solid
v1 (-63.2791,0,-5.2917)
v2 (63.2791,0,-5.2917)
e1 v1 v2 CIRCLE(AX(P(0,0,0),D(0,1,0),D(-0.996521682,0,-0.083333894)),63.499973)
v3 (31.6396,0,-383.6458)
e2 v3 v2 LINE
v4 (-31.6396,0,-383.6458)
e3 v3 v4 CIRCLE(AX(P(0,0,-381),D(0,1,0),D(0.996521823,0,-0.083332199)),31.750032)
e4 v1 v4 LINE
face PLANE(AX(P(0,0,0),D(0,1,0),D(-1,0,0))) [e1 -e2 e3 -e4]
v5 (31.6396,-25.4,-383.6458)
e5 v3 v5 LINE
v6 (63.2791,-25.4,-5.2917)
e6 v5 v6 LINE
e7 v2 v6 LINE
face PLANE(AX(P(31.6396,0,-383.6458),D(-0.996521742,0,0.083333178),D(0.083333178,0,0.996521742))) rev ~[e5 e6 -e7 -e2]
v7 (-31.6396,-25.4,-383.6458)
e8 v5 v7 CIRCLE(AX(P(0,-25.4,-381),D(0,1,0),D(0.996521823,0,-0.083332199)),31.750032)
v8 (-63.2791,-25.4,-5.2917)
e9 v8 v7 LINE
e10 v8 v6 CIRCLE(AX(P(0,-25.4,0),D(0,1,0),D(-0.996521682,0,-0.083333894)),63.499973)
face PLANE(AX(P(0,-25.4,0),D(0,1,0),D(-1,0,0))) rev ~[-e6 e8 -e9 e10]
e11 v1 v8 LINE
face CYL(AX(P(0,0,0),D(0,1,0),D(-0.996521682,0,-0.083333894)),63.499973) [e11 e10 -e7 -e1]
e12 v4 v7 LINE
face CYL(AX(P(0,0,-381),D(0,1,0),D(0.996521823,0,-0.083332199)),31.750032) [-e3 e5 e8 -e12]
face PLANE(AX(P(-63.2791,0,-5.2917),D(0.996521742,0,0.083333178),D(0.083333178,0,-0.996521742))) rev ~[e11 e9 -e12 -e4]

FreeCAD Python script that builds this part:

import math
import FreeCAD as App
import Part
import Sketcher

V = App.Vector
Q = App.Units.Quantity

doc = App.newDocument("Part")
body = doc.addObject("PartDesign::Body", "Body")

# Sketch on XZ plane
sketch1 = body.newObject("Sketcher::SketchObject", "Sketch")
sketch1.AttachmentSupport = (doc.getObject("XZ_Plane"), [""])
sketch1.MapMode = "FlatFace"
sketch1.addGeometry(Part.LineSegment(V(-32, -384, 0), V(-63, -5, 0)), False)
sketch1.addGeometry(Part.ArcOfCircle(Part.Circle(V(0, 0, 0), V(0, 0, 1), 63), math.radians(-5), math.radians(185)), False)
sketch1.addGeometry(Part.LineSegment(V(63, -5, 0), V(32, -384, 0)), False)
sketch1.addGeometry(Part.ArcOfCircle(Part.Circle(V(0, -381, 0), V(0, 0, 1), 32), math.radians(-175), math.radians(-5)), False)
sketch1.addConstraint(Sketcher.Constraint("Tangent", 0, 2, 1, 2))
sketch1.addConstraint(Sketcher.Constraint("Tangent", 1, 1, 2, 1))
sketch1.addConstraint(Sketcher.Constraint("Tangent", 2, 2, 3, 2))
sketch1.addConstraint(Sketcher.Constraint("Tangent", 3, 1, 0, 1))
sketch1.addConstraint(Sketcher.Constraint("Coincident", 1, 3, -1, 1))
sketch1.addConstraint(Sketcher.Constraint("PointOnObject", 3, 3, -2))
sketch1.addConstraint(Sketcher.Constraint("Radius", 1, Q("2.5 in")))
sketch1.addConstraint(Sketcher.Constraint("Radius", 3, Q("1.25 in")))
sketch1.addConstraint(Sketcher.Constraint("DistanceY", 3, 3, -1, 1, Q("15 in")))
pad1 = body.newObject("PartDesign::Pad", "Pad")
pad1.Profile = sketch1
pad1.Length = Q("1 in")

doc.recompute()
